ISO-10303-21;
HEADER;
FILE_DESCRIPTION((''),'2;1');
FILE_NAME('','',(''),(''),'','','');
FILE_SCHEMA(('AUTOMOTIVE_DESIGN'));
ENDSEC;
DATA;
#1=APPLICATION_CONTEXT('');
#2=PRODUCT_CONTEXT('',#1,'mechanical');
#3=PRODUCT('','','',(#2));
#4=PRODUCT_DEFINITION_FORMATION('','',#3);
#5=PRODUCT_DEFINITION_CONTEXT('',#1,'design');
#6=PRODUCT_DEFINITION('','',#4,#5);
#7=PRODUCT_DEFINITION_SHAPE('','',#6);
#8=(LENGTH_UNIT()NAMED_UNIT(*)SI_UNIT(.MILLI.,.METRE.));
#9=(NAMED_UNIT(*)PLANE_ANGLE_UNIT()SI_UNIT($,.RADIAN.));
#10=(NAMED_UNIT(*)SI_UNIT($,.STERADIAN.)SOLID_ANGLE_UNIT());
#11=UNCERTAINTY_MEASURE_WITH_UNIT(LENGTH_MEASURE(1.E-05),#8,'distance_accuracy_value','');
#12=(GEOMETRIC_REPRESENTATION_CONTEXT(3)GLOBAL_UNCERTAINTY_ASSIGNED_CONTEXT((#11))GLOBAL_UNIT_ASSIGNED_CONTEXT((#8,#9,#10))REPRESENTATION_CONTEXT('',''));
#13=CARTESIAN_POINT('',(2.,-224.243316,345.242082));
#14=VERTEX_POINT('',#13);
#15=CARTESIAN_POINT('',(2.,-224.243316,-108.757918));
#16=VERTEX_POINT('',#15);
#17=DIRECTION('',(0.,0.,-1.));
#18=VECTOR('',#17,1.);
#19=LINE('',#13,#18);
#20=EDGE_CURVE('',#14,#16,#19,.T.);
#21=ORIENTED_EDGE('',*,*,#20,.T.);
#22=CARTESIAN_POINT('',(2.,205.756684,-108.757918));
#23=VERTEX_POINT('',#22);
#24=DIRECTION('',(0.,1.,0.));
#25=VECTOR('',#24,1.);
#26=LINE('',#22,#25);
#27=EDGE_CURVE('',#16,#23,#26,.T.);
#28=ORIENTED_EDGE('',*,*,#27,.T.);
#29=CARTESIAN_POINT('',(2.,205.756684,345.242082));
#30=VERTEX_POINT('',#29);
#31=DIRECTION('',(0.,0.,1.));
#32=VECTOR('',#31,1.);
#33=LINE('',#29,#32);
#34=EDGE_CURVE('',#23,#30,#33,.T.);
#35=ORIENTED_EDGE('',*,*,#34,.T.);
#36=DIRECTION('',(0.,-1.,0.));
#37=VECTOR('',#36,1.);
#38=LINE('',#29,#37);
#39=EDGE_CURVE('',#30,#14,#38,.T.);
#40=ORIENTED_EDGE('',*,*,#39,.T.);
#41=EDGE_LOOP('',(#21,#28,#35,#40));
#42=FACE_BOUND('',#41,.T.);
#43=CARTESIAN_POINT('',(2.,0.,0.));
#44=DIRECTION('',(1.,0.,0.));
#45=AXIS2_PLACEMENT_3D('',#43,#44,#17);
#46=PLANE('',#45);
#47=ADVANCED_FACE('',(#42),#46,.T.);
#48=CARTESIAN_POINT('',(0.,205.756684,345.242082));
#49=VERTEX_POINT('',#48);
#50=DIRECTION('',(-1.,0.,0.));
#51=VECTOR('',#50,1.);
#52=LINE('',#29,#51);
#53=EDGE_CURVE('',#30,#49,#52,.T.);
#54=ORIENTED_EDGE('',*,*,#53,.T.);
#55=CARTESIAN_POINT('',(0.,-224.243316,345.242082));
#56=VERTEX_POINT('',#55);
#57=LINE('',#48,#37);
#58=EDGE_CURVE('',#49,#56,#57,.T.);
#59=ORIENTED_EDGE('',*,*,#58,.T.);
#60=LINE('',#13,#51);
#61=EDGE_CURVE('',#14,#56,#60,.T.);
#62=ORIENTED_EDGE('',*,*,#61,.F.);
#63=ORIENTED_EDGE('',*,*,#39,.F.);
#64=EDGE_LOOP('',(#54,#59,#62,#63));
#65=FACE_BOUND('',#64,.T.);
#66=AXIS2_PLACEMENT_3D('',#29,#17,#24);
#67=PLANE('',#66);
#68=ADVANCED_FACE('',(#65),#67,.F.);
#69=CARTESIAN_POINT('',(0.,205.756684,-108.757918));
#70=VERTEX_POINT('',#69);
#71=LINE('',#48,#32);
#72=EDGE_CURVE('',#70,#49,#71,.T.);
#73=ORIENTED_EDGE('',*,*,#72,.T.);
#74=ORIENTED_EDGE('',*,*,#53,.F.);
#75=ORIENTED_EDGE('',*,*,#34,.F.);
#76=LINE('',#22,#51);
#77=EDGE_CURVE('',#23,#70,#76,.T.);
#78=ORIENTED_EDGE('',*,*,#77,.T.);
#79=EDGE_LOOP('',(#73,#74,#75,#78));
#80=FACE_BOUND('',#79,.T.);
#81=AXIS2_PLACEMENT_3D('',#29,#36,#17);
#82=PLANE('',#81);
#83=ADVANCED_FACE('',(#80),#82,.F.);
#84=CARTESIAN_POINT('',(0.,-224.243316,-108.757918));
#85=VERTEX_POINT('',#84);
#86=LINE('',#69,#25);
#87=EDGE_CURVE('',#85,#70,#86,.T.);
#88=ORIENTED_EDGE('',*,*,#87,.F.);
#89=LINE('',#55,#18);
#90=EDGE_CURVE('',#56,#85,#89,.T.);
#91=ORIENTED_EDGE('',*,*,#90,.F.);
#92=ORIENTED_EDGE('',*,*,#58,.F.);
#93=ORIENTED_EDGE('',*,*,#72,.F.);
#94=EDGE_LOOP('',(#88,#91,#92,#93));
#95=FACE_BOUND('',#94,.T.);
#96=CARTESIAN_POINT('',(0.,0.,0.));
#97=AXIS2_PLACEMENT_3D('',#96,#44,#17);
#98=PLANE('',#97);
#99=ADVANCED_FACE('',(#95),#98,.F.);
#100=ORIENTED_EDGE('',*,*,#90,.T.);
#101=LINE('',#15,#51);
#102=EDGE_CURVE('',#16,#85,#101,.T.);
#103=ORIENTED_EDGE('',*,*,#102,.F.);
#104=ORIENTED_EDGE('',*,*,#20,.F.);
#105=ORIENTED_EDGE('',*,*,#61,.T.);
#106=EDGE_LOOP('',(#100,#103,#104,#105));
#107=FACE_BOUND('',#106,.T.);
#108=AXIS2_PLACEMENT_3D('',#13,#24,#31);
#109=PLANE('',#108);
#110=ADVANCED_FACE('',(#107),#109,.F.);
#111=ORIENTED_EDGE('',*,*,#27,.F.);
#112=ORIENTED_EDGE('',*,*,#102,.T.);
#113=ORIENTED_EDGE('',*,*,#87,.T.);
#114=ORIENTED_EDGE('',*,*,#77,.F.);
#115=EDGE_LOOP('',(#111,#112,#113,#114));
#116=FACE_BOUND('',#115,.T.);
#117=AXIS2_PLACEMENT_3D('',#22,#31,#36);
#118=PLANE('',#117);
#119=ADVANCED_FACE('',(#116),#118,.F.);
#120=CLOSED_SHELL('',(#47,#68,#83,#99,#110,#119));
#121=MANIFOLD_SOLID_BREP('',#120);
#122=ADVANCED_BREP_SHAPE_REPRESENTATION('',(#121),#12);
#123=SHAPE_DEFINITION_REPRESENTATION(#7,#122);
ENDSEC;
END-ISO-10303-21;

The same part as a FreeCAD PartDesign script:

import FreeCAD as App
import Part
import Sketcher

V = App.Vector
Q = App.Units.Quantity


def add_polygon(sketch, points):
    """Adds a closed chain of lines whose ends are joined by coincident constraints."""
    first, n = sketch.GeometryCount, len(points)
    for a, b in zip(points, points[1:] + points[:1]):
        sketch.addGeometry(Part.LineSegment(App.Vector(*a, 0), App.Vector(*b, 0)), False)
    for i in range(n):
        sketch.addConstraint(Sketcher.Constraint("Coincident", first + i, 2, first + (i + 1) % n, 1))

doc = App.newDocument("Part")
params = doc.addObject("Spreadsheet::Sheet", "Params")
for row, (alias, value) in enumerate([
    ("sketch1_width", "430 mm"),
    ("sketch1_height", "454 mm"),
    ("pad1_length", "2 mm"),
], start=1):
    params.set(f"A{row}", alias)
    params.set(f"B{row}", "=" + value)
    params.setAlias(f"B{row}", alias)

body = doc.addObject("PartDesign::Body", "Body")

# Sketch on YZ plane
sketch1 = body.newObject("Sketcher::SketchObject", "Sketch")
sketch1.AttachmentSupport = (doc.getObject("YZ_Plane"), [""])
sketch1.MapMode = "FlatFace"
add_polygon(sketch1, [(206, 345), (-224, 345), (-224, -109), (206, -109)])  # lines 0-3
sketch1.addConstraint(Sketcher.Constraint("Horizontal", 0))
sketch1.addConstraint(Sketcher.Constraint("Vertical", 1))
sketch1.addConstraint(Sketcher.Constraint("Horizontal", 2))
sketch1.addConstraint(Sketcher.Constraint("Vertical", 3))
sketch1.addConstraint(Sketcher.Constraint("DistanceX", 0, 2, 0, 1, Q("430 mm")))
sketch1.addConstraint(Sketcher.Constraint("DistanceY", 1, 2, 1, 1, Q("454 mm")))
sketch1.addConstraint(Sketcher.Constraint("DistanceX", 0, 2, -1, 1, Q("224.243316 mm")))
sketch1.addConstraint(Sketcher.Constraint("DistanceY", -1, 1, 0, 2, Q("345.242082 mm")))
sketch1.setExpression("Constraints[8]", "Params.sketch1_width")
sketch1.setExpression("Constraints[9]", "Params.sketch1_height")
pad1 = body.newObject("PartDesign::Pad", "Pad")
pad1.Profile = sketch1
pad1.setExpression("Length", "Params.pad1_length")

doc.recompute()
